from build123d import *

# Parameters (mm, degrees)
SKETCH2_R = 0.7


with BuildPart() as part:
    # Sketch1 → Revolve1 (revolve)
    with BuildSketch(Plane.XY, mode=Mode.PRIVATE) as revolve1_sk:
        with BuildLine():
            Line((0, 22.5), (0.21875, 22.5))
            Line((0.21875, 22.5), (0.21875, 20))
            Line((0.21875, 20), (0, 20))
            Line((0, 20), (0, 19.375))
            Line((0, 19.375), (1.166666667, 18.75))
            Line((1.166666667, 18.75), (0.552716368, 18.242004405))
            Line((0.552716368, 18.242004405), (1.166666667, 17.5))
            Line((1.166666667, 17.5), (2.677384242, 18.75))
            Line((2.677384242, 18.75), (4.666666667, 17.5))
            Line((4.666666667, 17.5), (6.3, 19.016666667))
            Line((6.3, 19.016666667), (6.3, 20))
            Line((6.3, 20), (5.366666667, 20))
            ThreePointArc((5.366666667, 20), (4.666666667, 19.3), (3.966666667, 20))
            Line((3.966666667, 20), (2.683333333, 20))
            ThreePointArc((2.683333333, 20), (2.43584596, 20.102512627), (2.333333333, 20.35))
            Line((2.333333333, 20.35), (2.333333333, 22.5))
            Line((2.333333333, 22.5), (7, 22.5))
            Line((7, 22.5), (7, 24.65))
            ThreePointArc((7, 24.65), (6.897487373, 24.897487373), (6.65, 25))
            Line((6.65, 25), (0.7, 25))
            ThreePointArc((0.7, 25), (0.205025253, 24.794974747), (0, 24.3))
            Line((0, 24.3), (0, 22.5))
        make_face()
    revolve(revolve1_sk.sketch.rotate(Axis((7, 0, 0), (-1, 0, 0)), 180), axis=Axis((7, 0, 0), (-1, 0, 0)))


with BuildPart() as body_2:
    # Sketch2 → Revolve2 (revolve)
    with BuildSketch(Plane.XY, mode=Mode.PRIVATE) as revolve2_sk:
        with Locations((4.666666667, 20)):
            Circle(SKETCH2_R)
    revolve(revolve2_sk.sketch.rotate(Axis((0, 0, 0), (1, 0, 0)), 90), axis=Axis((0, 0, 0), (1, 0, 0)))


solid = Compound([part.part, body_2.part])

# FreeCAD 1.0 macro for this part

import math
import FreeCAD as App
import Part
import Sketcher

doc = App.newDocument("Part")
body = doc.addObject("PartDesign::Body", "Body")

sketch1 = body.newObject("Sketcher::SketchObject", "Sketch")
sketch1.AttachmentSupport = (doc.getObject("XY_Plane"), [""])
sketch1.MapMode = "FlatFace"
sketch1.addGeometry([
    Part.LineSegment(App.Vector(0, 22.5, 0), App.Vector(0.22, 22.5, 0)),
    Part.LineSegment(App.Vector(0.22, 22.5, 0), App.Vector(0.22, 20, 0)),
    Part.LineSegment(App.Vector(0.22, 20, 0), App.Vector(0, 20, 0)),
    Part.LineSegment(App.Vector(0, 20, 0), App.Vector(0, 19.38, 0)),
    Part.LineSegment(App.Vector(0, 19.38, 0), App.Vector(1.17, 18.75, 0)),
    Part.LineSegment(App.Vector(1.17, 18.75, 0), App.Vector(0.55, 18.24, 0)),
    Part.LineSegment(App.Vector(0.55, 18.24, 0), App.Vector(1.17, 17.5, 0)),
    Part.LineSegment(App.Vector(1.17, 17.5, 0), App.Vector(2.68, 18.75, 0)),
    Part.LineSegment(App.Vector(2.68, 18.75, 0), App.Vector(4.67, 17.5, 0)),
    Part.LineSegment(App.Vector(4.67, 17.5, 0), App.Vector(6.3, 19.02, 0)),
    Part.LineSegment(App.Vector(6.3, 19.02, 0), App.Vector(6.3, 20, 0)),
    Part.LineSegment(App.Vector(6.3, 20, 0), App.Vector(5.37, 20, 0)),
    Part.ArcOfCircle(Part.Circle(App.Vector(4.67, 20, 0), App.Vector(0, 0, 1), 0.7), math.radians(180), math.radians(360)),
    Part.LineSegment(App.Vector(3.97, 20, 0), App.Vector(2.68, 20, 0)),
    Part.ArcOfCircle(Part.Circle(App.Vector(2.68, 20.35, 0), App.Vector(0, 0, 1), 0.35), math.radians(-180), math.radians(-90)),
    Part.LineSegment(App.Vector(2.33, 20.35, 0), App.Vector(2.33, 22.5, 0)),
    Part.LineSegment(App.Vector(2.33, 22.5, 0), App.Vector(7, 22.5, 0)),
    Part.LineSegment(App.Vector(7, 22.5, 0), App.Vector(7, 24.65, 0)),
    Part.ArcOfCircle(Part.Circle(App.Vector(6.65, 24.65, 0), App.Vector(0, 0, 1), 0.35), math.radians(0), math.radians(90)),
    Part.LineSegment(App.Vector(6.65, 25, 0), App.Vector(0.7, 25, 0)),
    Part.ArcOfCircle(Part.Circle(App.Vector(0.7, 24.3, 0), App.Vector(0, 0, 1), 0.7), math.radians(90), math.radians(180)),
    Part.LineSegment(App.Vector(0, 24.3, 0), App.Vector(0, 22.5, 0)),
], False)
sketch1.addConstraint([
    Sketcher.Constraint("Coincident", 0, 2, 1, 1),
    Sketcher.Constraint("Coincident", 1, 2, 2, 1),
    Sketcher.Constraint("Coincident", 2, 2, 3, 1),
    Sketcher.Constraint("Coincident", 3, 2, 4, 1),
    Sketcher.Constraint("Coincident", 4, 2, 5, 1),
    Sketcher.Constraint("Coincident", 5, 2, 6, 1),
    Sketcher.Constraint("Coincident", 6, 2, 7, 1),
    Sketcher.Constraint("Coincident", 7, 2, 8, 1),
    Sketcher.Constraint("Coincident", 8, 2, 9, 1),
    Sketcher.Constraint("Coincident", 9, 2, 10, 1),
    Sketcher.Constraint("Coincident", 10, 2, 11, 1),
    Sketcher.Constraint("Coincident", 11, 2, 12, 2),
    Sketcher.Constraint("Coincident", 12, 1, 13, 1),
    Sketcher.Constraint("Tangent", 13, 2, 14, 2),
    Sketcher.Constraint("Tangent", 14, 1, 15, 1),
    Sketcher.Constraint("Coincident", 15, 2, 16, 1),
    Sketcher.Constraint("Coincident", 16, 2, 17, 1),
    Sketcher.Constraint("Tangent", 17, 2, 18, 1),
    Sketcher.Constraint("Tangent", 18, 2, 19, 1),
    Sketcher.Constraint("Tangent", 19, 2, 20, 1),
    Sketcher.Constraint("Tangent", 20, 2, 21, 1),
    Sketcher.Constraint("Coincident", 21, 2, 0, 1),
    Sketcher.Constraint("Horizontal", 0),
    Sketcher.Constraint("Vertical", 1),
    Sketcher.Constraint("Horizontal", 2),
    Sketcher.Constraint("Vertical", 3),
    Sketcher.Constraint("Vertical", 10),
    Sketcher.Constraint("Horizontal", 11),
    Sketcher.Constraint("Horizontal", 13),
    Sketcher.Constraint("Vertical", 15),
    Sketcher.Constraint("Horizontal", 16),
    Sketcher.Constraint("Vertical", 17),
    Sketcher.Constraint("Horizontal", 19),
    Sketcher.Constraint("Vertical", 21),
    Sketcher.Constraint("Equal", 14, 18),
    Sketcher.Constraint("Equal", 12, 20),
    Sketcher.Constraint("PointOnObject", 2, 2, -2),
    Sketcher.Constraint("PointOnObject", 20, 2, -2),
    Sketcher.Constraint("Perpendicular", 5, 6),
    Sketcher.Constraint("Perpendicular", 6, 7),
    Sketcher.Constraint("Horizontal", 12, 3, 1, 2),
    Sketcher.Constraint("Horizontal", 4, 2, 7, 2),
    Sketcher.Constraint("Horizontal", 6, 2, 8, 2),
    Sketcher.Constraint("Horizontal", 2, 2, 10, 2),
    Sketcher.Constraint("Horizontal", 11, 2, 12, 1),
    Sketcher.Constraint("Horizontal", 0, 2, 15, 2),
    Sketcher.Constraint("Vertical", 4, 2, 6, 2),
    Sketcher.Constraint("Vertical", 12, 3, 8, 2),
    Sketcher.Constraint("Equal", 15, 17),
    Sketcher.Constraint("Radius", 12, 0.7),
    Sketcher.Constraint("Radius", 14, 0.35),
    Sketcher.Constraint("DistanceY", 1, 2, 1, 1, 2.5),
    Sketcher.Constraint("DistanceY", -1, 1, 12, 3, 20.0),
    Sketcher.Constraint("DistanceX", -1, 1, 16, 2, 7.0),
    Sketcher.Constraint("DistanceY", -1, 1, 6, 2, 17.5),
    Sketcher.Constraint("DistanceX", -1, 1, 9, 2, 6.3),
    Sketcher.Constraint("DistanceY", 4, 2, 14, 3, 1.6),
    Sketcher.Constraint("DistanceX", 4, 2, 12, 3, 3.5),
    Sketcher.Constraint("DistanceY", 3, 2, 3, 1, 0.625),
    Sketcher.Constraint("DistanceX", 0, 1, 0, 2, 0.21875),
    Sketcher.Constraint("Distance", 4, 1.323532),
    Sketcher.Constraint("Distance", 6, 0.963071),
    Sketcher.Constraint("DistanceX", 13, 2, 13, 1, 1.283333),
    Sketcher.Constraint("DistanceY", 10, 1, 10, 2, 0.983333),
])
revolution = body.newObject("PartDesign::Revolution", "Revolution")
revolution.Profile = sketch1
revolution.ReferenceAxis = (sketch1, ["H_Axis"])
revolution.Angle = 360
body2 = doc.addObject("PartDesign::Body", "Body001")

sketch2 = body2.newObject("Sketcher::SketchObject", "Sketch001")
sketch2.AttachmentSupport = (doc.getObject("XY_Plane001"), [""])
sketch2.MapMode = "FlatFace"
sketch2.addGeometry(Part.Circle(App.Vector(4.7, 20, 0), App.Vector(0, 0, 1), 0.7), False)
sketch2.addConstraint([
    Sketcher.Constraint("Diameter", 0, 1.4),
    Sketcher.Constraint("DistanceY", -1, 1, 0, 3, 20.0),
    Sketcher.Constraint("DistanceX", -1, 1, 0, 3, 4.666667),
])
revolution2 = body2.newObject("PartDesign::Revolution", "Revolution001")
revolution2.Profile = sketch2
revolution2.ReferenceAxis = (sketch2, ["H_Axis"])
revolution2.Angle = 360

doc.recompute()
